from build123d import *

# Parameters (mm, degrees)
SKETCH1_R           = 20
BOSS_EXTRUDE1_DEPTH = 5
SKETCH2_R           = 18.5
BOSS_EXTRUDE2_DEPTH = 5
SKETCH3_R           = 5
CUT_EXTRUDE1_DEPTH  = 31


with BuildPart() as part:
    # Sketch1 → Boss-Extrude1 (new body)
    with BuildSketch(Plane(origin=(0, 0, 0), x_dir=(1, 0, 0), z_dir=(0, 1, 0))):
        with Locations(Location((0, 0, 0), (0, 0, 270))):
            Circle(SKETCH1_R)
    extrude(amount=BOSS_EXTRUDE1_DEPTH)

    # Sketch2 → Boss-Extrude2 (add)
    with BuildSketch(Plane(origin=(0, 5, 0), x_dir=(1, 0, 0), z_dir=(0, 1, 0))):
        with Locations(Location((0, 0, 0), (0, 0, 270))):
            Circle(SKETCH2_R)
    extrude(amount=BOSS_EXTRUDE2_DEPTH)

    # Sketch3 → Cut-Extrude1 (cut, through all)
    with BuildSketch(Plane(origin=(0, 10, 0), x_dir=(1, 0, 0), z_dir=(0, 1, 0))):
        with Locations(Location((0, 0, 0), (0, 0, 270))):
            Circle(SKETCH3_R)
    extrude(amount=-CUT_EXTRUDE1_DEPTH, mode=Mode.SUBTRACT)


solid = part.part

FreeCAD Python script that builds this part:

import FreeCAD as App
import Part
import Sketcher

doc = App.newDocument("Part")
body = doc.addObject("PartDesign::Body", "Body")

# Sketch on XZ plane
sketch1 = body.newObject("Sketcher::SketchObject", "Sketch")
sketch1.AttachmentSupport = (doc.getObject("XZ_Plane"), [""])
sketch1.MapMode = "FlatFace"
sketch1.addGeometry(Part.Circle(App.Vector(0, 0, 0), App.Vector(0, 0, 1), 20), False)
sketch1.addConstraint([
    Sketcher.Constraint("Coincident", 0, 3, -1, 1),
    Sketcher.Constraint("Diameter", 0, 40.0),
])
pad1 = body.newObject("PartDesign::Pad", "Pad")
pad1.Profile = sketch1
pad1.Length = 5
pad1.Reversed = True

# Sketch on XZ plane
sketch2 = body.newObject("Sketcher::SketchObject", "Sketch001")
sketch2.AttachmentSupport = (doc.getObject("XZ_Plane"), [""])
sketch2.MapMode = "FlatFace"
sketch2.AttachmentOffset = App.Placement(App.Vector(0, 0, -5), App.Rotation())
sketch2.addGeometry(Part.Circle(App.Vector(0, 0, 0), App.Vector(0, 0, 1), 18), False)
sketch2.addConstraint([
    Sketcher.Constraint("Coincident", 0, 3, -1, 1),
    Sketcher.Constraint("Diameter", 0, 37.0),
])
pad2 = body.newObject("PartDesign::Pad", "Pad001")
pad2.Profile = sketch2
pad2.Length = 5
pad2.Reversed = True

# Sketch on XZ plane
sketch3 = body.newObject("Sketcher::SketchObject", "Sketch002")
sketch3.AttachmentSupport = (doc.getObject("XZ_Plane"), [""])
sketch3.MapMode = "FlatFace"
sketch3.AttachmentOffset = App.Placement(App.Vector(0, 0, -10), App.Rotation())
sketch3.addGeometry(Part.Circle(App.Vector(0, 0, 0), App.Vector(0, 0, 1), 5), False)
sketch3.addConstraint([
    Sketcher.Constraint("Coincident", 0, 3, -1, 1),
    Sketcher.Constraint("Diameter", 0, 10.0),
])
pocket1 = body.newObject("PartDesign::Pocket", "Pocket")
pocket1.Profile = sketch3
pocket1.Type = "ThroughAll"
pocket1.Reversed = True

doc.recompute()
